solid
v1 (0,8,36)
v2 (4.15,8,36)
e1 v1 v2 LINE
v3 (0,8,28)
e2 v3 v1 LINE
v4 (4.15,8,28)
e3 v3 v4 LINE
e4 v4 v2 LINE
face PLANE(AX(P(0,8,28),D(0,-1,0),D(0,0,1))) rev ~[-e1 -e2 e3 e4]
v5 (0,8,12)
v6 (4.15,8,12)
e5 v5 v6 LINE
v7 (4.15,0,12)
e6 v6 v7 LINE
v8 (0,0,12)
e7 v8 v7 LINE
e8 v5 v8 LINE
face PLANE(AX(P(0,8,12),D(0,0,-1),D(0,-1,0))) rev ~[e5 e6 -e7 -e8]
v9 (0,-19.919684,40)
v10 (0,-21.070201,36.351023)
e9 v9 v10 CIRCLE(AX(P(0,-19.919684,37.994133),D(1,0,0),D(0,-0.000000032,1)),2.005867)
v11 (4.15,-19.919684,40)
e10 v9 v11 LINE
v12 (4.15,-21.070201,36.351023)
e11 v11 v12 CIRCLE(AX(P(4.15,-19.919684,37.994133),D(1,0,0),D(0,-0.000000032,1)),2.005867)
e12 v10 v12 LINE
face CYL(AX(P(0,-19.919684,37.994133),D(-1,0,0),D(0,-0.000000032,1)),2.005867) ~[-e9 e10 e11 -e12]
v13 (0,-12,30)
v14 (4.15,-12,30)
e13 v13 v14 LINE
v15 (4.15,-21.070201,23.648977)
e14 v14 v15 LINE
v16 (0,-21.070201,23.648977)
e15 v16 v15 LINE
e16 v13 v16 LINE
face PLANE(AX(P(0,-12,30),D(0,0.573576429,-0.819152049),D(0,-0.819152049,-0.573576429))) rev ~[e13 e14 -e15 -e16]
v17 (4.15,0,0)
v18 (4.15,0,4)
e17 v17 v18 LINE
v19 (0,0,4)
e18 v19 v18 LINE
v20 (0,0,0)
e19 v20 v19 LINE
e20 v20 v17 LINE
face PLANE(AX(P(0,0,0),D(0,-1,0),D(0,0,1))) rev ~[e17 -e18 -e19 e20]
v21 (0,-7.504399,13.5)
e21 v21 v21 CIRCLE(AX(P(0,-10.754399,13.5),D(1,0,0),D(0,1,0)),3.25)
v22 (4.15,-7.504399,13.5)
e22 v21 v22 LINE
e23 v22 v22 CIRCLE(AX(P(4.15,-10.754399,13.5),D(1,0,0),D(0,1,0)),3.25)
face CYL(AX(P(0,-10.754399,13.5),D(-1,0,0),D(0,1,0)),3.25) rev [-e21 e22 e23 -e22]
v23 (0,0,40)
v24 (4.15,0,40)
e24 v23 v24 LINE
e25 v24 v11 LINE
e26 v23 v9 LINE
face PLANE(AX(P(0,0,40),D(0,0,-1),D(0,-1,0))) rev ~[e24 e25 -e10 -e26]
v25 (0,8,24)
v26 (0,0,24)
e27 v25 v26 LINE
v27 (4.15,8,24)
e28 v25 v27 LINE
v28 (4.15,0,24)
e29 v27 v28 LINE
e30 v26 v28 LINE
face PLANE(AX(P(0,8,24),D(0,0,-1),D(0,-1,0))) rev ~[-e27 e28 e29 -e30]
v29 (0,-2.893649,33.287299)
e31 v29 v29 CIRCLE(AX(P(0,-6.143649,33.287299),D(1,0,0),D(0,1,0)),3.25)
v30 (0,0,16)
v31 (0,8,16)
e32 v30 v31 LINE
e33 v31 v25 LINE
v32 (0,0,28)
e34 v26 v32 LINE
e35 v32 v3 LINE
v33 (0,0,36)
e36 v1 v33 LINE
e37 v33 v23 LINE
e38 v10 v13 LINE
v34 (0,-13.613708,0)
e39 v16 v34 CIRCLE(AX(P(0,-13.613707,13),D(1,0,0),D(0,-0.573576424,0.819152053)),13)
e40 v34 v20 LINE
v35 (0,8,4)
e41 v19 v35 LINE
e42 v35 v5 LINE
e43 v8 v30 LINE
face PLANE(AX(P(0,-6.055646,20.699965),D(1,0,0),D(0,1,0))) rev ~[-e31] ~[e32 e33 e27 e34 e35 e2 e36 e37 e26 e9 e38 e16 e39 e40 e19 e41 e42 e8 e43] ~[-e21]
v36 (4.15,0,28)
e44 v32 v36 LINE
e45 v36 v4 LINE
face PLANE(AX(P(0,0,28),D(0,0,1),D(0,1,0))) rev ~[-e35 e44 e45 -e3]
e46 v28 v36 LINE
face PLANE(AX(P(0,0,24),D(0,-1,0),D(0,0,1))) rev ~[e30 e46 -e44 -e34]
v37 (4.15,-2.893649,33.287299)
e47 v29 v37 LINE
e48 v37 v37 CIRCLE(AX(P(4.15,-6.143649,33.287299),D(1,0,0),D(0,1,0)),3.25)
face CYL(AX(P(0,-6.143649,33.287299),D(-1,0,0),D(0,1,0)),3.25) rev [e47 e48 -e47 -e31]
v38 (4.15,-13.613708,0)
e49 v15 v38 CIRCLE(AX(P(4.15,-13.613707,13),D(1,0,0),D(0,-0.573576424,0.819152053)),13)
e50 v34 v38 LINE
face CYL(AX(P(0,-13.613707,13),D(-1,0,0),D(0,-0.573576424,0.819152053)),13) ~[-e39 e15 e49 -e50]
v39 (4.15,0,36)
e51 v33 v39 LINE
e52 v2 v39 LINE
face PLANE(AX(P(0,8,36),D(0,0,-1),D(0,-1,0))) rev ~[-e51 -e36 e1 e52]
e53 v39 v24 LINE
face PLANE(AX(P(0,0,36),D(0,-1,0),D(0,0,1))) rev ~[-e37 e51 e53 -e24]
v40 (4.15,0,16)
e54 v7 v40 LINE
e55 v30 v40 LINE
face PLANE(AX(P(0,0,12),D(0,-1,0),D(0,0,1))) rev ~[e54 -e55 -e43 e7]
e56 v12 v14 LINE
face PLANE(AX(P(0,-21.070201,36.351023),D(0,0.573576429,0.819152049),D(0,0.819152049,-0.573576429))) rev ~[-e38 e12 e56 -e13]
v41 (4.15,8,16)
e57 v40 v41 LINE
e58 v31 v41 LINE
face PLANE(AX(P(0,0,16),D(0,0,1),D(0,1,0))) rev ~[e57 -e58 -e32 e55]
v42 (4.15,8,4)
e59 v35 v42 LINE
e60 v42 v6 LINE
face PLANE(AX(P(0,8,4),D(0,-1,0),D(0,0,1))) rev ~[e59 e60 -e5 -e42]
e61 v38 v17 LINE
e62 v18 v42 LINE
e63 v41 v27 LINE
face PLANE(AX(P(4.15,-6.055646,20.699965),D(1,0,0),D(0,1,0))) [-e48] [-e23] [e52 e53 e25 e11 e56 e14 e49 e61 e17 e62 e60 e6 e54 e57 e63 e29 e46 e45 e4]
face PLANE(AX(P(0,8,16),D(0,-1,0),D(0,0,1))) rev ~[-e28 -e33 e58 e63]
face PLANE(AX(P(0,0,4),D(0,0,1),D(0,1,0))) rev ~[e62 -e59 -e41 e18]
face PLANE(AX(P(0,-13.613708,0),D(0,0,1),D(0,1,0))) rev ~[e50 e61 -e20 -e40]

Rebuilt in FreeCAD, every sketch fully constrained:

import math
import FreeCAD as App
import Part
import Sketcher

V = App.Vector
Q = App.Units.Quantity

doc = App.newDocument("Part")
body = doc.addObject("PartDesign::Body", "Body")

# Sketch on YZ plane
sketch1 = body.newObject("Sketcher::SketchObject", "Sketch")
sketch1.AttachmentSupport = (doc.getObject("YZ_Plane"), [""])
sketch1.MapMode = "FlatFace"
sketch1.addGeometry([
    Part.LineSegment(V(-13.6, 0, 0), V(0, 0, 0)),  # 0
    Part.LineSegment(V(0, 0, 0), V(0, 4, 0)),  # 1
    Part.LineSegment(V(0, 4, 0), V(8, 4, 0)),  # 2
    Part.LineSegment(V(8, 4, 0), V(8, 12, 0)),  # 3
    Part.LineSegment(V(8, 12, 0), V(0, 12, 0)),  # 4
    Part.LineSegment(V(0, 12, 0), V(0, 16, 0)),  # 5
    Part.LineSegment(V(0, 16, 0), V(8, 16, 0)),  # 6
    Part.LineSegment(V(8, 16, 0), V(8, 24, 0)),  # 7
    Part.LineSegment(V(8, 24, 0), V(0, 24, 0)),  # 8
    Part.LineSegment(V(0, 24, 0), V(0, 28, 0)),  # 9
    Part.LineSegment(V(0, 28, 0), V(8, 28, 0)),  # 10
    Part.LineSegment(V(8, 28, 0), V(8, 36, 0)),  # 11
    Part.LineSegment(V(8, 36, 0), V(0, 36, 0)),  # 12
    Part.LineSegment(V(0, 36, 0), V(0, 40, 0)),  # 13
    Part.LineSegment(V(0, 40, 0), V(-19.9, 40, 0)),  # 14
    Part.ArcOfCircle(Part.Circle(V(-19.9, 38, 0), V(0, 0, 1), 2), math.radians(90), math.radians(235)),  # 15
    Part.LineSegment(V(-21.1, 36.4, 0), V(-12, 30, 0)),  # 16
    Part.LineSegment(V(-12, 30, 0), V(-21.1, 23.6, 0)),  # 17
    Part.ArcOfCircle(Part.Circle(V(-13.6, 13, 0), V(0, 0, 1), 13), math.radians(125), math.radians(270)),  # 18
    Part.Circle(V(-10.8, 13.5, 0), V(0, 0, 1), 3.2),  # 19
    Part.Circle(V(-6.1, 33.3, 0), V(0, 0, 1), 3.2),  # 20
], False)
sketch1.addConstraint([
    Sketcher.Constraint("Coincident", 0, 2, 1, 1),
    Sketcher.Constraint("Coincident", 1, 2, 2, 1),
    Sketcher.Constraint("Coincident", 2, 2, 3, 1),
    Sketcher.Constraint("Coincident", 3, 2, 4, 1),
    Sketcher.Constraint("Coincident", 4, 2, 5, 1),
    Sketcher.Constraint("Coincident", 5, 2, 6, 1),
    Sketcher.Constraint("Coincident", 6, 2, 7, 1),
    Sketcher.Constraint("Coincident", 7, 2, 8, 1),
    Sketcher.Constraint("Coincident", 8, 2, 9, 1),
    Sketcher.Constraint("Coincident", 9, 2, 10, 1),
    Sketcher.Constraint("Coincident", 10, 2, 11, 1),
    Sketcher.Constraint("Coincident", 11, 2, 12, 1),
    Sketcher.Constraint("Coincident", 12, 2, 13, 1),
    Sketcher.Constraint("Coincident", 13, 2, 14, 1),
    Sketcher.Constraint("Tangent", 14, 2, 15, 1),
    Sketcher.Constraint("Tangent", 15, 2, 16, 1),
    Sketcher.Constraint("Coincident", 16, 2, 17, 1),
    Sketcher.Constraint("Tangent", 17, 2, 18, 1),
    Sketcher.Constraint("Tangent", 18, 2, 0, 1),
    Sketcher.Constraint("Horizontal", 0),
    Sketcher.Constraint("Vertical", 1),
    Sketcher.Constraint("Horizontal", 2),
    Sketcher.Constraint("Vertical", 3),
    Sketcher.Constraint("Horizontal", 4),
    Sketcher.Constraint("Vertical", 5),
    Sketcher.Constraint("Horizontal", 6),
    Sketcher.Constraint("Vertical", 7),
    Sketcher.Constraint("Horizontal", 8),
    Sketcher.Constraint("Vertical", 9),
    Sketcher.Constraint("Horizontal", 10),
    Sketcher.Constraint("Vertical", 11),
    Sketcher.Constraint("Horizontal", 12),
    Sketcher.Constraint("Vertical", 13),
    Sketcher.Constraint("Horizontal", 14),
    Sketcher.Constraint("Coincident", 0, 2, -1, 1),
    Sketcher.Constraint("Equal", 19, 20),
    Sketcher.Constraint("PointOnObject", 4, 2, -2),
    Sketcher.Constraint("PointOnObject", 8, 2, -2),
    Sketcher.Constraint("PointOnObject", 12, 2, -2),
    Sketcher.Constraint("Vertical", 3, 2, 6, 2),
    Sketcher.Constraint("Vertical", 7, 2, 10, 2),
    Sketcher.Constraint("Vertical", 15, 2, 17, 2),
    Sketcher.Constraint("Equal", 12, 3),
    Sketcher.Constraint("Equal", 1, 5),
    Sketcher.Constraint("Equal", 3, 7),
    Sketcher.Constraint("Equal", 5, 9),
    Sketcher.Constraint("Equal", 7, 11),
    Sketcher.Constraint("Equal", 9, 13),
    Sketcher.Constraint("Equal", 16, 17),
    Sketcher.Constraint("Radius", 18, Q("13 mm")),
    Sketcher.Constraint("Diameter", 19, Q("6.5 mm")),
    Sketcher.Constraint("DistanceX", 2, 1, 2, 2, Q("8 mm")),
    Sketcher.Constraint("DistanceY", 1, 1, 1, 2, Q("4 mm")),
    Sketcher.Constraint("Angle", 16, Q("-35 deg")),
    Sketcher.Constraint("DistanceX", 16, 2, -1, 1, Q("12 mm")),
    Sketcher.Constraint("DistanceY", -1, 1, 16, 2, Q("30 mm")),
    Sketcher.Constraint("DistanceY", -1, 1, 19, 3, Q("13.5 mm")),
    Sketcher.Constraint("DistanceX", 19, 3, -1, 1, Q("10.754399 mm")),
    Sketcher.Constraint("DistanceY", -1, 1, 20, 3, Q("33.287299 mm")),
    Sketcher.Constraint("DistanceX", 20, 3, -1, 1, Q("6.143649 mm")),
])
pad1 = body.newObject("PartDesign::Pad", "Pad")
pad1.Profile = sketch1
pad1.Length = 4.15

doc.recompute()
